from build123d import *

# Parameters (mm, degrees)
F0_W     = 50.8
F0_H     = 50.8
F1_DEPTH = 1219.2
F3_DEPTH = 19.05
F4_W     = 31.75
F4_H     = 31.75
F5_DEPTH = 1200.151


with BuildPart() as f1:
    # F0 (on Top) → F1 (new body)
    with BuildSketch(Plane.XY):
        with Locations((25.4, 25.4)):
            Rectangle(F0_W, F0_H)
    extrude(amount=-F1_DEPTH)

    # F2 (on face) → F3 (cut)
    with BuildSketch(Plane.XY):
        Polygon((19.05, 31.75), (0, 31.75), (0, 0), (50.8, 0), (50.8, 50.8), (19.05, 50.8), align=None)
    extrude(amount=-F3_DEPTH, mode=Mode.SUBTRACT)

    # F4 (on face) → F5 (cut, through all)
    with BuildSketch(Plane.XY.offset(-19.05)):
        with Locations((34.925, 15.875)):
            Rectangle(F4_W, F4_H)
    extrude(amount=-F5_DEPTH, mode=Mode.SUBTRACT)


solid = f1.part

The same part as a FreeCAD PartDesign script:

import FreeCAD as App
import Part
import Sketcher
Q = App.Units.Quantity


def add_polygon(sketch, points):
    """Adds a closed chain of lines whose ends are joined by coincident constraints."""
    first, n = sketch.GeometryCount, len(points)
    for a, b in zip(points, points[1:] + points[:1]):
        sketch.addGeometry(Part.LineSegment(App.Vector(*a, 0), App.Vector(*b, 0)), False)
    for i in range(n):
        sketch.addConstraint(Sketcher.Constraint("Coincident", first + i, 2, first + (i + 1) % n, 1))

doc = App.newDocument("Part")
body = doc.addObject("PartDesign::Body", "Body")

sketch1 = body.newObject("Sketcher::SketchObject", "Sketch")
sketch1.AttachmentSupport = (doc.getObject("XY_Plane"), [""])
sketch1.MapMode = "FlatFace"
add_polygon(sketch1, [(0, 51), (0, 0), (51, 0), (51, 51)])
sketch1.addConstraint([
    Sketcher.Constraint("Vertical", 0),
    Sketcher.Constraint("Horizontal", 1),
    Sketcher.Constraint("Vertical", 2),
    Sketcher.Constraint("Horizontal", 3),
    Sketcher.Constraint("Coincident", 0, 2, -1, 1),
    Sketcher.Constraint("Equal", 3, 0),
    Sketcher.Constraint("DistanceX", 1, 1, 1, 2, Q("2 in")),
])
pad1 = body.newObject("PartDesign::Pad", "Pad")
pad1.Profile = sketch1
pad1.Length = Q("48 in")
pad1.Reversed = True

sketch2 = body.newObject("Sketcher::SketchObject", "Sketch001")
sketch2.AttachmentSupport = (doc.getObject("XY_Plane"), [""])
sketch2.MapMode = "FlatFace"
add_polygon(sketch2, [(19, 32), (0, 32), (0, 0), (51, 0), (51, 51), (19, 51)])
sketch2.addConstraint([
    Sketcher.Constraint("Horizontal", 0),
    Sketcher.Constraint("Vertical", 1),
    Sketcher.Constraint("Horizontal", 2),
    Sketcher.Constraint("Vertical", 3),
    Sketcher.Constraint("Horizontal", 4),
    Sketcher.Constraint("Vertical", 5),
    Sketcher.Constraint("Coincident", 1, 2, -1, 1),
    Sketcher.Constraint("Equal", 4, 1),
    Sketcher.Constraint("Equal", 2, 3),
    Sketcher.Constraint("DistanceX", 2, 1, 2, 2, Q("2 in")),
    Sketcher.Constraint("DistanceX", 0, 2, 0, 1, Q("0.75 in")),
])
pocket1 = body.newObject("PartDesign::Pocket", "Pocket")
pocket1.Profile = sketch2
pocket1.Length = Q("0.75 in")

sketch3 = body.newObject("Sketcher::SketchObject", "Sketch002")
sketch3.AttachmentSupport = (doc.getObject("XY_Plane"), [""])
sketch3.MapMode = "FlatFace"
sketch3.AttachmentOffset = App.Placement(App.Vector(0, 0, -0.75 * 25.4), App.Rotation())
add_polygon(sketch3, [(19, 32), (19, 0), (51, 0), (51, 32)])
sketch3.addConstraint([
    Sketcher.Constraint("Vertical", 0),
    Sketcher.Constraint("Horizontal", 1),
    Sketcher.Constraint("Vertical", 2),
    Sketcher.Constraint("Horizontal", 3),
    Sketcher.Constraint("PointOnObject", 0, 2, -1),
    Sketcher.Constraint("Equal", 3, 0),
    Sketcher.Constraint("DistanceX", -1, 1, 1, 2, Q("2 in")),
    Sketcher.Constraint("DistanceX", 1, 1, 1, 2, Q("1.25 in")),
])
pocket2 = body.newObject("PartDesign::Pocket", "Pocket001")
pocket2.Profile = sketch3
pocket2.Type = "ThroughAll"

doc.recompute()
